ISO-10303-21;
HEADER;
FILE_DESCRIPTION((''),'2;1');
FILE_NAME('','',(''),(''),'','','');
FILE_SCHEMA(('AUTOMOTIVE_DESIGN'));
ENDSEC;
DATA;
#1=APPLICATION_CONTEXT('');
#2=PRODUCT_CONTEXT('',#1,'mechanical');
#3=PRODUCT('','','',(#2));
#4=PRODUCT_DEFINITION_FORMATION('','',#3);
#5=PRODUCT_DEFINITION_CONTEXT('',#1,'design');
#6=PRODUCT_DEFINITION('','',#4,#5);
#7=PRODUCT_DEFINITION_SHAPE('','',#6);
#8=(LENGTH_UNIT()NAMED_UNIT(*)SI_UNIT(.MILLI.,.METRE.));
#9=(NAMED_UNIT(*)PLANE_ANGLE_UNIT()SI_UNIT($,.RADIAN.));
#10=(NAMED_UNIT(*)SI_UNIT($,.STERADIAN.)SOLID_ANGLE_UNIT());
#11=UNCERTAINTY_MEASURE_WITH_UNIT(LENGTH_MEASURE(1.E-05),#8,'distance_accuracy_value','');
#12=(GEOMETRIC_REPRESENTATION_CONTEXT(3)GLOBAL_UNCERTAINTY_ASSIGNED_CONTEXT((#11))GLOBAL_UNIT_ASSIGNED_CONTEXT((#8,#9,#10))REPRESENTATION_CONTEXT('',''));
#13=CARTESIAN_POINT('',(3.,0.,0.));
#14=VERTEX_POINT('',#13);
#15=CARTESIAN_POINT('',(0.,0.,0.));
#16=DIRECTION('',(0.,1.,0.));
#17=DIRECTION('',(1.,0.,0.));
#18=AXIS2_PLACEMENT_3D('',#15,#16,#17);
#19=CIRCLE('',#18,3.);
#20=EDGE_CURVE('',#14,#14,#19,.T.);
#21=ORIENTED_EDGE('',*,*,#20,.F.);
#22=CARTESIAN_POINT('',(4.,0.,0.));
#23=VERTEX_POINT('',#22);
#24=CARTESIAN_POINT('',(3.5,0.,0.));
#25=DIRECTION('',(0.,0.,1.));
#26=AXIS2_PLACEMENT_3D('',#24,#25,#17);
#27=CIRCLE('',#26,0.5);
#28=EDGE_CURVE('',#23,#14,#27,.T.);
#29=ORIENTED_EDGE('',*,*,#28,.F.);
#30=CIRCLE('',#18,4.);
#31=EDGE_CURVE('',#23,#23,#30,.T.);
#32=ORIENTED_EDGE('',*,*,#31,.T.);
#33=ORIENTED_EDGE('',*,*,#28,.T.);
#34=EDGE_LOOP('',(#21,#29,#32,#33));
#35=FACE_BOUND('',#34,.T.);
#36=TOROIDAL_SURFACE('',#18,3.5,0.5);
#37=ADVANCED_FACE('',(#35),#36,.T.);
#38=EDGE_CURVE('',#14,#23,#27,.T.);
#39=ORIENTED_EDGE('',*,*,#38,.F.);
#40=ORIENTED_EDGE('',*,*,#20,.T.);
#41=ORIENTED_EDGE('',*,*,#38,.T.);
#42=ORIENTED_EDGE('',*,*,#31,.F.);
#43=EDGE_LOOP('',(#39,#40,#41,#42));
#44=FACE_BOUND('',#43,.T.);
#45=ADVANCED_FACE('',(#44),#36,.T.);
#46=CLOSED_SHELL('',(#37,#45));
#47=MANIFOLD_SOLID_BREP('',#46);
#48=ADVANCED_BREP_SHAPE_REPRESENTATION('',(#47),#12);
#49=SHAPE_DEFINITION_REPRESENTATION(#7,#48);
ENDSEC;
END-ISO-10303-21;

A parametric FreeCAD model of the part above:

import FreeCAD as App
import Part
import Sketcher

V = App.Vector

doc = App.newDocument("Part")
body = doc.addObject("PartDesign::Body", "Body")

sketch1 = body.newObject("Sketcher::SketchObject", "Sketch")
sketch1.AttachmentSupport = (doc.getObject("XY_Plane"), [""])
sketch1.MapMode = "FlatFace"
sketch1.addGeometry(Part.Circle(V(3.5, 0, 0), V(0, 0, 1), 0.5), False)
sketch1.addConstraint(Sketcher.Constraint("PointOnObject", 0, 3, -1))
sketch1.addConstraint(Sketcher.Constraint("Diameter", 0, 1.0))
sketch1.addConstraint(Sketcher.Constraint("DistanceX", -1, 1, 0, 3, 3.5))
revolution = body.newObject("PartDesign::Revolution", "Revolution")
revolution.Profile = sketch1
revolution.ReferenceAxis = (sketch1, ["V_Axis"])
revolution.Angle = 360

doc.recompute()
